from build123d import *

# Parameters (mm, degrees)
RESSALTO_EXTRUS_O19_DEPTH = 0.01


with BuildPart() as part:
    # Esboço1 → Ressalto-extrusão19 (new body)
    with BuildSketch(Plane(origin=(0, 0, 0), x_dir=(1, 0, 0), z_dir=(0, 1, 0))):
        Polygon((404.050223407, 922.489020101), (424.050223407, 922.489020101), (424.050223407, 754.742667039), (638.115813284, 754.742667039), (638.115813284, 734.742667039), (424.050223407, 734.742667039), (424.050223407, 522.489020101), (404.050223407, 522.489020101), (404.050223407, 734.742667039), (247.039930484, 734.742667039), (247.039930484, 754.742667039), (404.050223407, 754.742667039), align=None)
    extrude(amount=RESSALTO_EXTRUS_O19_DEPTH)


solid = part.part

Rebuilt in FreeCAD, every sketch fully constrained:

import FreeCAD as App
import Part
import Sketcher
Q = App.Units.Quantity

doc = App.newDocument("Part")
body = doc.addObject("PartDesign::Body", "Body")

sketch1 = body.newObject("Sketcher::SketchObject", "Sketch")
sketch1.AttachmentSupport = (doc.getObject("XZ_Plane"), [""])
sketch1.MapMode = "FlatFace"
sketch1.addGeometry(Part.LineSegment(App.Vector(424, -922, 0), App.Vector(404, -922, 0)), False)
sketch1.addGeometry(Part.LineSegment(App.Vector(404, -922, 0), App.Vector(404, -755, 0)), False)
sketch1.addGeometry(Part.LineSegment(App.Vector(404, -755, 0), App.Vector(247, -755, 0)), False)
sketch1.addGeometry(Part.LineSegment(App.Vector(247, -755, 0), App.Vector(247, -735, 0)), False)
sketch1.addGeometry(Part.LineSegment(App.Vector(247, -735, 0), App.Vector(404, -735, 0)), False)
sketch1.addGeometry(Part.LineSegment(App.Vector(404, -735, 0), App.Vector(404, -522, 0)), False)
sketch1.addGeometry(Part.LineSegment(App.Vector(404, -522, 0), App.Vector(424, -522, 0)), False)
sketch1.addGeometry(Part.LineSegment(App.Vector(424, -522, 0), App.Vector(424, -735, 0)), False)
sketch1.addGeometry(Part.LineSegment(App.Vector(424, -735, 0), App.Vector(638, -735, 0)), False)
sketch1.addGeometry(Part.LineSegment(App.Vector(638, -735, 0), App.Vector(638, -755, 0)), False)
sketch1.addGeometry(Part.LineSegment(App.Vector(638, -755, 0), App.Vector(424, -755, 0)), False)
sketch1.addGeometry(Part.LineSegment(App.Vector(424, -755, 0), App.Vector(424, -922, 0)), False)
sketch1.addConstraint(Sketcher.Constraint("Coincident", 0, 2, 1, 1))
sketch1.addConstraint(Sketcher.Constraint("Coincident", 1, 2, 2, 1))
sketch1.addConstraint(Sketcher.Constraint("Coincident", 2, 2, 3, 1))
sketch1.addConstraint(Sketcher.Constraint("Coincident", 3, 2, 4, 1))
sketch1.addConstraint(Sketcher.Constraint("Coincident", 4, 2, 5, 1))
sketch1.addConstraint(Sketcher.Constraint("Coincident", 5, 2, 6, 1))
sketch1.addConstraint(Sketcher.Constraint("Coincident", 6, 2, 7, 1))
sketch1.addConstraint(Sketcher.Constraint("Coincident", 7, 2, 8, 1))
sketch1.addConstraint(Sketcher.Constraint("Coincident", 8, 2, 9, 1))
sketch1.addConstraint(Sketcher.Constraint("Coincident", 9, 2, 10, 1))
sketch1.addConstraint(Sketcher.Constraint("Coincident", 10, 2, 11, 1))
sketch1.addConstraint(Sketcher.Constraint("Coincident", 11, 2, 0, 1))
sketch1.addConstraint(Sketcher.Constraint("Horizontal", 0))
sketch1.addConstraint(Sketcher.Constraint("Vertical", 1))
sketch1.addConstraint(Sketcher.Constraint("Horizontal", 2))
sketch1.addConstraint(Sketcher.Constraint("Vertical", 3))
sketch1.addConstraint(Sketcher.Constraint("Horizontal", 4))
sketch1.addConstraint(Sketcher.Constraint("Vertical", 5))
sketch1.addConstraint(Sketcher.Constraint("Horizontal", 6))
sketch1.addConstraint(Sketcher.Constraint("Vertical", 7))
sketch1.addConstraint(Sketcher.Constraint("Horizontal", 8))
sketch1.addConstraint(Sketcher.Constraint("Vertical", 9))
sketch1.addConstraint(Sketcher.Constraint("Horizontal", 10))
sketch1.addConstraint(Sketcher.Constraint("Vertical", 11))
sketch1.addConstraint(Sketcher.Constraint("Horizontal", 4, 2, 7, 2))
sketch1.addConstraint(Sketcher.Constraint("Horizontal", 2, 2, 9, 2))
sketch1.addConstraint(Sketcher.Constraint("Vertical", 1, 2, 4, 2))
sketch1.addConstraint(Sketcher.Constraint("Vertical", 7, 2, 10, 2))
sketch1.addConstraint(Sketcher.Constraint("Equal", 6, 3))
sketch1.addConstraint(Sketcher.Constraint("DistanceX", 0, 2, 0, 1, Q("20 mm")))
sketch1.addConstraint(Sketcher.Constraint("DistanceY", 0, 2, 5, 2, Q("400 mm")))
sketch1.addConstraint(Sketcher.Constraint("DistanceX", 8, 1, 8, 2, Q("214.06559 mm")))
sketch1.addConstraint(Sketcher.Constraint("DistanceX", 2, 2, 2, 1, Q("157.010293 mm")))
sketch1.addConstraint(Sketcher.Constraint("DistanceY", 1, 1, 1, 2, Q("167.746353 mm")))
sketch1.addConstraint(Sketcher.Constraint("DistanceY", 0, 2, -1, 1, Q("922.48902 mm")))
sketch1.addConstraint(Sketcher.Constraint("DistanceX", -1, 1, 2, 2, Q("247.03993 mm")))
pad1 = body.newObject("PartDesign::Pad", "Pad")
pad1.Profile = sketch1
pad1.Length = 0.01
pad1.Reversed = True

doc.recompute()
